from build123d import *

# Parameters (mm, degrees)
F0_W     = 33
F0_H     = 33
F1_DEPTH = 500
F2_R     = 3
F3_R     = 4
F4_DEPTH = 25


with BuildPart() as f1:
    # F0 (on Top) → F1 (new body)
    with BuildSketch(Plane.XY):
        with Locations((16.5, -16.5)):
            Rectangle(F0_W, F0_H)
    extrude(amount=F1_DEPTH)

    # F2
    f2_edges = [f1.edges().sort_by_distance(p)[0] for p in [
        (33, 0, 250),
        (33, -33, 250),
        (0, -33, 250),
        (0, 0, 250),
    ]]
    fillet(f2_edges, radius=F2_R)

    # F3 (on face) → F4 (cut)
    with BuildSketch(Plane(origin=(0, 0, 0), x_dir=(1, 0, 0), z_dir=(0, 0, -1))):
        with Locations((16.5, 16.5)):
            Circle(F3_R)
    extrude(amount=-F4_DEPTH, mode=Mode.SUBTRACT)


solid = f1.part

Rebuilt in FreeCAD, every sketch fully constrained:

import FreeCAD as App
import Part
import Sketcher

V = App.Vector


def edges_at(feature, points):
    """Names of the edges that pass closest to the given points."""
    edges = feature.Shape.Edges
    near = lambda p: min(range(len(edges)), key=lambda i: edges[i].distToShape(Part.Vertex(*p))[0])
    return sorted({f"Edge{near(p) + 1}" for p in points})


def add_polygon(sketch, points):
    """Adds a closed chain of lines whose ends are joined by coincident constraints."""
    first, n = sketch.GeometryCount, len(points)
    for a, b in zip(points, points[1:] + points[:1]):
        sketch.addGeometry(Part.LineSegment(App.Vector(*a, 0), App.Vector(*b, 0)), False)
    for i in range(n):
        sketch.addConstraint(Sketcher.Constraint("Coincident", first + i, 2, first + (i + 1) % n, 1))

doc = App.newDocument("Part")
params = doc.addObject("Spreadsheet::Sheet", "Params")
for row, (alias, value) in enumerate([
    ("sketch1_width", "33 mm"),
    ("pad1_length", "500 mm"),
    ("fillet_radius", "3 mm"),
    ("sketch2_diameter", "8 mm"),
    ("pocket1_length", "25 mm"),
], start=1):
    params.set(f"A{row}", alias)
    params.set(f"B{row}", "=" + value)
    params.setAlias(f"B{row}", alias)

body = doc.addObject("PartDesign::Body", "Body")

sketch1 = body.newObject("Sketcher::SketchObject", "Sketch")
sketch1.AttachmentSupport = (doc.getObject("XY_Plane"), [""])
sketch1.MapMode = "FlatFace"
add_polygon(sketch1, [(0, 0), (0, -33), (33, -33), (33, 0)])
sketch1.addConstraint([
    Sketcher.Constraint("Vertical", 0),
    Sketcher.Constraint("Horizontal", 1),
    Sketcher.Constraint("Vertical", 2),
    Sketcher.Constraint("Horizontal", 3),
    Sketcher.Constraint("Coincident", 3, 2, -1, 1),
    Sketcher.Constraint("Equal", 3, 0),
    Sketcher.Constraint("DistanceX", 1, 1, 1, 2, 33.0),
])
sketch1.setExpression("Constraints[10]", "Params.sketch1_width")
pad1 = body.newObject("PartDesign::Pad", "Pad")
pad1.Profile = sketch1
pad1.setExpression("Length", "Params.pad1_length")
doc.recompute()

fillet = body.newObject("PartDesign::Fillet", "Fillet")
fillet.Base = (pad1, edges_at(pad1, [
    (33, 0, 250),
    (33, -33, 250),
    (0, -33, 250),
    (0, 0, 250),
]))
fillet.setExpression("Radius", "Params.fillet_radius")

sketch2 = body.newObject("Sketcher::SketchObject", "Sketch001")
sketch2.AttachmentSupport = (doc.getObject("XY_Plane"), [""])
sketch2.MapMode = "FlatFace"
sketch2.addGeometry(Part.Circle(V(16.5, -16.5, 0), V(0, 0, 1), 4), False)
sketch2.addConstraint([
    Sketcher.Constraint("Diameter", 0, 8.0),
    Sketcher.Constraint("DistanceX", -1, 1, 0, 3, 16.5),
    Sketcher.Constraint("DistanceY", 0, 3, -1, 1, 16.5),
])
sketch2.setExpression("Constraints[0]", "Params.sketch2_diameter")
pocket1 = body.newObject("PartDesign::Pocket", "Pocket")
pocket1.Profile = sketch2
pocket1.setExpression("Length", "Params.pocket1_length")
pocket1.Reversed = True

doc.recompute()
